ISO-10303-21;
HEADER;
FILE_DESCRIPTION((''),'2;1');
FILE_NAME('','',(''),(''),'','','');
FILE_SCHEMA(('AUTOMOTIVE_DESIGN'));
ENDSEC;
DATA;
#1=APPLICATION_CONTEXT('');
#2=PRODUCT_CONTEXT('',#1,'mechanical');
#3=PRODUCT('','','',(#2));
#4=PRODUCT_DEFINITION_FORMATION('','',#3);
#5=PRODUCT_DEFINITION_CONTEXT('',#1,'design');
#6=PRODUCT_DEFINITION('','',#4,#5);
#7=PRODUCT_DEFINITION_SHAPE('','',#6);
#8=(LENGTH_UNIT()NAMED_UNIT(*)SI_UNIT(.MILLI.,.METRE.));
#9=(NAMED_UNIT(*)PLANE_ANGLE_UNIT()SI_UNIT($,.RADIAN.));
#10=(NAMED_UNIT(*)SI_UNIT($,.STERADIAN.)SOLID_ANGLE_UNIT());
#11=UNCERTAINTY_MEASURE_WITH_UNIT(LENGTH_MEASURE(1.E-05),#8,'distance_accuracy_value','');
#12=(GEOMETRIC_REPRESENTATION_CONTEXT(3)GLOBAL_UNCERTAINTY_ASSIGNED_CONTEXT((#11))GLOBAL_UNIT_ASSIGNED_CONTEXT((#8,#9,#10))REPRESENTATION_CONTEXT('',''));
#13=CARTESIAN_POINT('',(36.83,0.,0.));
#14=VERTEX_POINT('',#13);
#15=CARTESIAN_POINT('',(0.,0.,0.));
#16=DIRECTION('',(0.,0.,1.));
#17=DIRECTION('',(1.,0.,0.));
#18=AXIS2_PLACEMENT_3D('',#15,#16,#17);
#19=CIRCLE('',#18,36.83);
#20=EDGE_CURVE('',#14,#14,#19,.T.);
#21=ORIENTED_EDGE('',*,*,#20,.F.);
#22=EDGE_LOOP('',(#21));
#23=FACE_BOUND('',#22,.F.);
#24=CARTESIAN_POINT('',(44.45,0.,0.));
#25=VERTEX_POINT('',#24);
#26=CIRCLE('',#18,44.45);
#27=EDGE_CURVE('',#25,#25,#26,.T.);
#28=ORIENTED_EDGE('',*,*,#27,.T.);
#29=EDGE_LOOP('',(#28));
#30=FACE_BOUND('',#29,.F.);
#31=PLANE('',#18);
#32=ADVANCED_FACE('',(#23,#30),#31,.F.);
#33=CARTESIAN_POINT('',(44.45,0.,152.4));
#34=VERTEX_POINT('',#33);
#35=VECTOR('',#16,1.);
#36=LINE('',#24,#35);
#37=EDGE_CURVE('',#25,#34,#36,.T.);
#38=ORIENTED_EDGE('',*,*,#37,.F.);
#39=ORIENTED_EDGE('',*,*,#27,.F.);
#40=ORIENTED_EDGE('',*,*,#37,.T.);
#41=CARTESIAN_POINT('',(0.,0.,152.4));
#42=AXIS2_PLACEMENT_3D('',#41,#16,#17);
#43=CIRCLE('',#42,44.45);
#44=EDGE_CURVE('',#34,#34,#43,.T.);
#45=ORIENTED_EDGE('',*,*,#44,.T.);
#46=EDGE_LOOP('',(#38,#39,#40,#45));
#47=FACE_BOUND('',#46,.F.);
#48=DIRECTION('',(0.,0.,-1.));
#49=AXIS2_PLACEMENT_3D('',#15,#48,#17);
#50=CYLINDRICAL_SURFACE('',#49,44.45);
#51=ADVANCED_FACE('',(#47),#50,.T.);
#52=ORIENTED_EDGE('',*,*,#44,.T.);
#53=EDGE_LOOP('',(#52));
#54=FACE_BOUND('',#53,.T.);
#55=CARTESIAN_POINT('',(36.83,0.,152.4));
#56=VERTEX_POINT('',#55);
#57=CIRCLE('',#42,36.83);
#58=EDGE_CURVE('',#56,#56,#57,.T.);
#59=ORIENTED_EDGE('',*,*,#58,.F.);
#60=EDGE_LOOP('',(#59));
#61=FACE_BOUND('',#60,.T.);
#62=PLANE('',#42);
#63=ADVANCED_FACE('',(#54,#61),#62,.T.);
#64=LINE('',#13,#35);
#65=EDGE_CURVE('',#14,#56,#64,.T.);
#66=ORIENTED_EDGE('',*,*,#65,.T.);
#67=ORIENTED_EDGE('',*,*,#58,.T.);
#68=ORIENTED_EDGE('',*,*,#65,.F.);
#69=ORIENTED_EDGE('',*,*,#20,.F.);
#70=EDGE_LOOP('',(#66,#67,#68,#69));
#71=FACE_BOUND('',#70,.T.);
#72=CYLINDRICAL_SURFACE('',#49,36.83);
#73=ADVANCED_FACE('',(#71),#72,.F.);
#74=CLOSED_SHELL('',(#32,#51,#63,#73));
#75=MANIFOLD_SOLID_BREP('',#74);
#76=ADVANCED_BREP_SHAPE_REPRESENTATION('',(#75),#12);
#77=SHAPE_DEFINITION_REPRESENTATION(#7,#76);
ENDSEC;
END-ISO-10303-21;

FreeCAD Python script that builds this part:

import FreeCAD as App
import Part
import Sketcher

V = App.Vector
Q = App.Units.Quantity

doc = App.newDocument("Part")
params = doc.addObject("Spreadsheet::Sheet", "Params")
for row, (alias, value) in enumerate([
    ("sketch1_diameter", "3.5 in"),
    ("sketch1_diameter2", "2.9 in"),
    ("pad1_length", "6 in"),
], start=1):
    params.set(f"A{row}", alias)
    params.set(f"B{row}", "=" + value)
    params.setAlias(f"B{row}", alias)

body = doc.addObject("PartDesign::Body", "Body")

sketch1 = body.newObject("Sketcher::SketchObject", "Sketch")
sketch1.AttachmentSupport = (doc.getObject("XY_Plane"), [""])
sketch1.MapMode = "FlatFace"
sketch1.addGeometry([
    Part.Circle(V(0, 0, 0), V(0, 0, 1), 44),
    Part.Circle(V(0, 0, 0), V(0, 0, 1), 37),
], False)
sketch1.addConstraint([
    Sketcher.Constraint("Coincident", 0, 3, -1, 1),
    Sketcher.Constraint("Coincident", 1, 3, -1, 1),
    Sketcher.Constraint("Diameter", 0, Q("3.5 in")),
    Sketcher.Constraint("Diameter", 1, Q("2.9 in")),
])
sketch1.setExpression("Constraints[2]", "Params.sketch1_diameter")
sketch1.setExpression("Constraints[3]", "Params.sketch1_diameter2")
pad1 = body.newObject("PartDesign::Pad", "Pad")
pad1.Profile = sketch1
pad1.setExpression("Length", "Params.pad1_length")

doc.recompute()
